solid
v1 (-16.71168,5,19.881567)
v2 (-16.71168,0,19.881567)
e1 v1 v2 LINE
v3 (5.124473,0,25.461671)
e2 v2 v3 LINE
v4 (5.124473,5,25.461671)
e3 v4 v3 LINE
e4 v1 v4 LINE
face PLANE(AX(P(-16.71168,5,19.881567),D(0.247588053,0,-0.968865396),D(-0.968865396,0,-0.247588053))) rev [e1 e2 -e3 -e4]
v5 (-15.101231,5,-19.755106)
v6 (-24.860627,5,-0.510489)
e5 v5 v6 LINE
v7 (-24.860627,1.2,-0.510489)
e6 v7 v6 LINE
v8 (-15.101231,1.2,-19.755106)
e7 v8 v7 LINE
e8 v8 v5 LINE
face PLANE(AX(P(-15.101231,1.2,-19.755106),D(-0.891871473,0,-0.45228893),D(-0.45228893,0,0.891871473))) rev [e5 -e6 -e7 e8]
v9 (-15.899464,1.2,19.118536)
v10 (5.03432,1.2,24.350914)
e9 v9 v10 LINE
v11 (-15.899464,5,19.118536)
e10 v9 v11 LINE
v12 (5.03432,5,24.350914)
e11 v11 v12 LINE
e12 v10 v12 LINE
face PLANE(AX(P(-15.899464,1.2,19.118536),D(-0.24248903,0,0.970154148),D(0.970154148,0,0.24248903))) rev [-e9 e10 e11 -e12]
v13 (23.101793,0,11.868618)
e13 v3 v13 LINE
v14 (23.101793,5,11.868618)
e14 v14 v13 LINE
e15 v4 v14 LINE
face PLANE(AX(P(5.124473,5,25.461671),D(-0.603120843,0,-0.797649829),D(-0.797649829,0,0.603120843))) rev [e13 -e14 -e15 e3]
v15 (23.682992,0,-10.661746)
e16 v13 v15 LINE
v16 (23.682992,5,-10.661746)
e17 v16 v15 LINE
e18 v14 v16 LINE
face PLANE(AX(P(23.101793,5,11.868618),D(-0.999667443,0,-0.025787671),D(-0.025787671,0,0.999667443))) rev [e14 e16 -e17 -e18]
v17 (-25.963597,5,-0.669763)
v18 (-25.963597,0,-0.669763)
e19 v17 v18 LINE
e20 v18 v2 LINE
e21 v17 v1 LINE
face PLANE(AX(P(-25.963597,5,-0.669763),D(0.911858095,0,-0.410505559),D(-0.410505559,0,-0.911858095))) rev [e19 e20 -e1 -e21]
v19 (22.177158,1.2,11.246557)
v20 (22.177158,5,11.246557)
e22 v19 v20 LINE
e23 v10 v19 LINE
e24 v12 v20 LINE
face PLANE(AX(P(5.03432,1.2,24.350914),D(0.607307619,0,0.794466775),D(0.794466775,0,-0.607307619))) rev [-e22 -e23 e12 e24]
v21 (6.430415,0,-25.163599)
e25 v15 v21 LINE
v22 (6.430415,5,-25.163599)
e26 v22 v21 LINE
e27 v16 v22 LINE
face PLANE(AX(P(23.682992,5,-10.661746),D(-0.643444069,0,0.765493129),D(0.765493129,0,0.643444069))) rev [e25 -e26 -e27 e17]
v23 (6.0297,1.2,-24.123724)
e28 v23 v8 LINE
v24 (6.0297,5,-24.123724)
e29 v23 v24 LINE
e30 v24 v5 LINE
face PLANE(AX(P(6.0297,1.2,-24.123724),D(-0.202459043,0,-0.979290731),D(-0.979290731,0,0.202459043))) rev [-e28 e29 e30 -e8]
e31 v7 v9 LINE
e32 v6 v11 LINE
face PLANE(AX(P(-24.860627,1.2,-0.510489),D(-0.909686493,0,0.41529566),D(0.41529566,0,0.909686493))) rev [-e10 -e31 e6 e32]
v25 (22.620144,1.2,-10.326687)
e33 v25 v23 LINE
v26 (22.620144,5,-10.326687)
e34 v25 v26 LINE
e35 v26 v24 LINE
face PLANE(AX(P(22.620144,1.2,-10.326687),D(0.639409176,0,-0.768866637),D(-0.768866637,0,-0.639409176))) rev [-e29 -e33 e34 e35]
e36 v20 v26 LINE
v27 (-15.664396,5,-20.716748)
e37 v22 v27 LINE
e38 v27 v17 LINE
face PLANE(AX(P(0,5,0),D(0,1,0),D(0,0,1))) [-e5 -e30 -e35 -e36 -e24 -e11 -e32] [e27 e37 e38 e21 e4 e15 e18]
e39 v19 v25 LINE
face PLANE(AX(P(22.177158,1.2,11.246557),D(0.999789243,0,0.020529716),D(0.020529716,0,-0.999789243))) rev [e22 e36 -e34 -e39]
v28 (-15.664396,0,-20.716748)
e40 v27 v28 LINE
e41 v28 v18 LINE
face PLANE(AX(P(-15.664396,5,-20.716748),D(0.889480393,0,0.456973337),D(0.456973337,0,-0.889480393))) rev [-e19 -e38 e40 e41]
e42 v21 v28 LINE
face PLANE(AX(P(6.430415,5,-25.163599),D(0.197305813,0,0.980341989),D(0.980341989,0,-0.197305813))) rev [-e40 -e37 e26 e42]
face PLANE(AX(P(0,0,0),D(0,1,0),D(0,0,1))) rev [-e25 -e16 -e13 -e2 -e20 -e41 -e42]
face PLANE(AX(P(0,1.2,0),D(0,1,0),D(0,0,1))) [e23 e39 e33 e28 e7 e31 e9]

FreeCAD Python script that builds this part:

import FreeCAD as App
import Part
import Sketcher

V = App.Vector


def add_polygon(sketch, points):
    """Adds a closed chain of lines whose ends are joined by coincident constraints."""
    first, n = sketch.GeometryCount, len(points)
    for a, b in zip(points, points[1:] + points[:1]):
        sketch.addGeometry(Part.LineSegment(App.Vector(*a, 0), App.Vector(*b, 0)), False)
    for i in range(n):
        sketch.addConstraint(Sketcher.Constraint("Coincident", first + i, 2, first + (i + 1) % n, 1))

doc = App.newDocument("Part")
params = doc.addObject("Spreadsheet::Sheet", "Params")
for row, (alias, value) in enumerate([
    ("pad1_length", "5 mm"),
    ("pocket1_length", "3.8 mm"),
], start=1):
    params.set(f"A{row}", alias)
    params.set(f"B{row}", "=" + value)
    params.setAlias(f"B{row}", alias)

body = doc.addObject("PartDesign::Body", "Body")

# Sketch on XZ plane
sketch1 = body.newObject("Sketcher::SketchObject", "Sketch")
sketch1.AttachmentSupport = (doc.getObject("XZ_Plane"), [""])
sketch1.MapMode = "FlatFace"
add_polygon(sketch1, [(-17, 20), (5, 25), (23, 12), (24, -11), (6, -25), (-16, -21), (-26, -1)])  # lines 0-6
sketch1.addConstraint([
    Sketcher.Constraint("Equal", 0, 1),
    Sketcher.Constraint("Equal", 1, 2),
    Sketcher.Constraint("Equal", 2, 3),
    Sketcher.Constraint("Equal", 3, 4),
    Sketcher.Constraint("Equal", 4, 5),
    Sketcher.Constraint("Equal", 5, 6),
    Sketcher.Constraint("DistanceY", 4, 2, 2, 2, 10.055002),
    Sketcher.Constraint("DistanceY", 3, 2, -1, 1, 25.163599),
    Sketcher.Constraint("DistanceX", 1, 2, 2, 2, 0.581199),
    Sketcher.Constraint("DistanceX", 5, 2, 4, 2, 10.299201),
    Sketcher.Constraint("Distance", 0, 22.53786),
    Sketcher.Constraint("DistanceY", -1, 1, 0, 2, 25.461671),
    Sketcher.Constraint("DistanceY", -1, 1, 1, 2, 11.868618),
    Sketcher.Constraint("DistanceX", -1, 1, 2, 2, 23.682992),
])
pad1 = body.newObject("PartDesign::Pad", "Pad")
pad1.Profile = sketch1
pad1.setExpression("Length", "Params.pad1_length")
pad1.Reversed = True

# Sketch on XZ plane
sketch2 = body.newObject("Sketcher::SketchObject", "Sketch001")
sketch2.AttachmentSupport = (doc.getObject("XZ_Plane"), [""])
sketch2.MapMode = "FlatFace"
sketch2.AttachmentOffset = App.Placement(V(0, 0, -5), App.Rotation())
add_polygon(sketch2, [(6, -24), (-15, -20), (-25, -1), (-16, 19), (5, 24), (22, 11), (23, -10)])  # lines 0-6
sketch2.addConstraint([
    Sketcher.Constraint("Equal", 0, 1),
    Sketcher.Constraint("Equal", 1, 2),
    Sketcher.Constraint("Equal", 2, 3),
    Sketcher.Constraint("Equal", 3, 4),
    Sketcher.Constraint("Equal", 4, 5),
    Sketcher.Constraint("Equal", 5, 6),
    Sketcher.Constraint("DistanceX", -1, 1, 6, 2, 6.0297),
    Sketcher.Constraint("DistanceY", 5, 2, 3, 2, 34.6776),
    Sketcher.Constraint("Distance", 0, 21.577791),
    Sketcher.Constraint("DistanceX", 0, 2, -1, 1, 15.101231),
    Sketcher.Constraint("DistanceY", 1, 2, -1, 1, 0.510489),
    Sketcher.Constraint("DistanceX", -1, 1, 3, 2, 5.03432),
    Sketcher.Constraint("DistanceY", 0, 2, 2, 2, 38.873641),
    Sketcher.Constraint("DistanceY", 0, 2, 3, 2, 44.106019),
])
pocket1 = body.newObject("PartDesign::Pocket", "Pocket")
pocket1.Profile = sketch2
pocket1.setExpression("Length", "Params.pocket1_length")
pocket1.Reversed = True

doc.recompute()
